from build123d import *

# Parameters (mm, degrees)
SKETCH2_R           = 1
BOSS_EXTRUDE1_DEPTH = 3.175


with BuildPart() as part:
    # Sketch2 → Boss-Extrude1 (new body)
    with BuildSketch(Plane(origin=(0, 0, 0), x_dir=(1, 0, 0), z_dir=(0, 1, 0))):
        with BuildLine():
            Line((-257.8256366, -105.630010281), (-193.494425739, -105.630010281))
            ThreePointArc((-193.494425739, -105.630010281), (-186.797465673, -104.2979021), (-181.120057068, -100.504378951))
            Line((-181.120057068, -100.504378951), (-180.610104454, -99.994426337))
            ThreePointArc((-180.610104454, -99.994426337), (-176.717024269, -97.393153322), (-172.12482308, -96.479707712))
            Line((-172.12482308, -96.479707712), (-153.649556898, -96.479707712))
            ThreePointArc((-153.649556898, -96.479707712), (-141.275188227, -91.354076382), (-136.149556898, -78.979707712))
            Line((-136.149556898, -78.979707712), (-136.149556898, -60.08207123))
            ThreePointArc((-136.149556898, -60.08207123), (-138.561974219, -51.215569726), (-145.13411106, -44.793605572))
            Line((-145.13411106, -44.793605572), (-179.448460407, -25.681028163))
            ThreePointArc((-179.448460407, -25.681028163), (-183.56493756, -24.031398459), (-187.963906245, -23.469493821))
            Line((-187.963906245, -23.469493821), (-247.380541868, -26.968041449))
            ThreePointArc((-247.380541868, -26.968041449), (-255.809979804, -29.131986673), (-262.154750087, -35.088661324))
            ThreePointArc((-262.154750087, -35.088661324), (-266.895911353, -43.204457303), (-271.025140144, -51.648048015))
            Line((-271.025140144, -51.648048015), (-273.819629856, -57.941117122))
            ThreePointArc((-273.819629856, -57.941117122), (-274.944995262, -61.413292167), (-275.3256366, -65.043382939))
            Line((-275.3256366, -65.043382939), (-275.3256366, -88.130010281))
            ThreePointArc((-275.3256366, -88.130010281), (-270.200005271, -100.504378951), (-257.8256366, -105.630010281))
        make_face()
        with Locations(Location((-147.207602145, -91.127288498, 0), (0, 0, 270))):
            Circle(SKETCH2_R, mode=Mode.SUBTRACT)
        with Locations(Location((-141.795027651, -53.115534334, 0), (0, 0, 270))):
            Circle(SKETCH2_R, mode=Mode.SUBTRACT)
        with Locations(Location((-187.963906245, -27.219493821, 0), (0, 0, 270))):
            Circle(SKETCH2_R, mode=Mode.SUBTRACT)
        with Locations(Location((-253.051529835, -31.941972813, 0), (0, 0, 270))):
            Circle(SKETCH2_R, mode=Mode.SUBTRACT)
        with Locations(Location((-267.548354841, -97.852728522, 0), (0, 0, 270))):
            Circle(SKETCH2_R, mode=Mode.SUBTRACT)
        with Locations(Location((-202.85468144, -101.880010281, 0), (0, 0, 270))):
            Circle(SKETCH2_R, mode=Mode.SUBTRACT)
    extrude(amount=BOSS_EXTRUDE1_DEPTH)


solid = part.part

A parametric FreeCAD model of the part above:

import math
import FreeCAD as App
import Part
import Sketcher
Q = App.Units.Quantity

doc = App.newDocument("Part")
body = doc.addObject("PartDesign::Body", "Body")

# Sketch on XZ plane
sketch1 = body.newObject("Sketcher::SketchObject", "Sketch")
sketch1.AttachmentSupport = (doc.getObject("XZ_Plane"), [""])
sketch1.MapMode = "FlatFace"
sketch1.addGeometry([
    Part.LineSegment(App.Vector(-257.825637, 105.63001, 0), App.Vector(-193.494426, 105.63001, 0)),  # 0
    Part.ArcOfCircle(Part.Circle(App.Vector(-193.494426, 88.13001, 0), App.Vector(0, 0, 1), 17.5), math.radians(45), math.radians(90)),  # 1
    Part.LineSegment(App.Vector(-181.120057, 100.504379, 0), App.Vector(-180.610104, 99.994426, 0)),  # 2
    Part.ArcOfCircle(Part.Circle(App.Vector(-172.124823, 108.479708, 0), App.Vector(0, 0, 1), 12), math.radians(-135), math.radians(-90)),  # 3
    Part.LineSegment(App.Vector(-172.124823, 96.479708, 0), App.Vector(-153.649557, 96.479708, 0)),  # 4
    Part.ArcOfCircle(Part.Circle(App.Vector(-153.649557, 78.979708, 0), App.Vector(0, 0, 1), 17.5), math.radians(0), math.radians(90)),  # 5
    Part.LineSegment(App.Vector(-136.149557, 78.979708, 0), App.Vector(-136.149557, 60.082071, 0)),  # 6
    Part.ArcOfCircle(Part.Circle(App.Vector(-153.649557, 60.082071, 0), App.Vector(0, 0, 1), 17.5), math.radians(-60.88285), math.radians(0)),  # 7
    Part.LineSegment(App.Vector(-145.134111, 44.793606, 0), App.Vector(-179.44846, 25.681028, 0)),  # 8
    Part.ArcOfCircle(Part.Circle(App.Vector(-187.963906, 40.969494, 0), App.Vector(0, 0, 1), 17.5), math.radians(-90), math.radians(-60.88285)),  # 9
    Part.LineSegment(App.Vector(-187.963906, 23.469494, 0), App.Vector(-247.380542, 26.968041, 0)),  # 10
    Part.ArcOfCircle(Part.Circle(App.Vector(-247.380542, 44.468041, 0), App.Vector(0, 0, 1), 17.5), math.radians(-147.59065), math.radians(-90)),  # 11
    Part.ArcOfCircle(Part.Circle(App.Vector(-154.715336, 103.296385, 0), App.Vector(0, 0, 1), 127.261625), math.radians(-156.055988), math.radians(-147.59065)),  # 12
    Part.LineSegment(App.Vector(-271.02514, 51.648048, 0), App.Vector(-273.81963, 57.941117, 0)),  # 13
    Part.ArcOfCircle(Part.Circle(App.Vector(-257.825637, 65.043383, 0), App.Vector(0, 0, 1), 17.5), math.radians(180), math.radians(203.944012)),  # 14
    Part.LineSegment(App.Vector(-275.325637, 65.043383, 0), App.Vector(-275.325637, 88.13001, 0)),  # 15
    Part.ArcOfCircle(Part.Circle(App.Vector(-257.825637, 88.13001, 0), App.Vector(0, 0, 1), 17.5), math.radians(90), math.radians(180)),  # 16
    Part.Circle(App.Vector(-267.548355, 97.852729, 0), App.Vector(0, 0, 1), 1),  # 17
    Part.Circle(App.Vector(-202.854681, 101.88001, 0), App.Vector(0, 0, 1), 1),  # 18
    Part.Circle(App.Vector(-147.207602, 91.127288, 0), App.Vector(0, 0, 1), 1),  # 19
    Part.Circle(App.Vector(-253.05153, 31.941973, 0), App.Vector(0, 0, 1), 1),  # 20
    Part.Circle(App.Vector(-141.795028, 53.115534, 0), App.Vector(0, 0, 1), 1),  # 21
    Part.Circle(App.Vector(-187.963906, 27.219494, 0), App.Vector(0, 0, 1), 1),  # 22
], False)
sketch1.addConstraint([
    Sketcher.Constraint("Tangent", 0, 2, 1, 2),
    Sketcher.Constraint("Tangent", 1, 1, 2, 1),
    Sketcher.Constraint("Tangent", 2, 2, 3, 1),
    Sketcher.Constraint("Tangent", 3, 2, 4, 1),
    Sketcher.Constraint("Tangent", 4, 2, 5, 2),
    Sketcher.Constraint("Tangent", 5, 1, 6, 1),
    Sketcher.Constraint("Tangent", 6, 2, 7, 2),
    Sketcher.Constraint("Tangent", 7, 1, 8, 1),
    Sketcher.Constraint("Tangent", 8, 2, 9, 2),
    Sketcher.Constraint("Coincident", 9, 1, 10, 1),
    Sketcher.Constraint("Coincident", 10, 2, 11, 2),
    Sketcher.Constraint("Tangent", 11, 1, 12, 2),
    Sketcher.Constraint("Tangent", 12, 1, 13, 1),
    Sketcher.Constraint("Tangent", 13, 2, 14, 2),
    Sketcher.Constraint("Tangent", 14, 1, 15, 1),
    Sketcher.Constraint("Tangent", 15, 2, 16, 2),
    Sketcher.Constraint("Tangent", 16, 1, 0, 1),
    Sketcher.Constraint("Horizontal", 0),
    Sketcher.Constraint("Horizontal", 4),
    Sketcher.Constraint("Vertical", 6),
    Sketcher.Constraint("Vertical", 15),
    Sketcher.Constraint("Equal", 1, 5),
    Sketcher.Constraint("Equal", 5, 7),
    Sketcher.Constraint("Equal", 7, 9),
    Sketcher.Constraint("Equal", 9, 11),
    Sketcher.Constraint("Equal", 11, 14),
    Sketcher.Constraint("Equal", 14, 16),
    Sketcher.Constraint("Equal", 17, 18),
    Sketcher.Constraint("Equal", 18, 19),
    Sketcher.Constraint("Equal", 19, 20),
    Sketcher.Constraint("Equal", 20, 21),
    Sketcher.Constraint("Equal", 21, 22),
    Sketcher.Constraint("Vertical", 9, 3, 22, 3),
    Sketcher.Constraint("Vertical", 22, 3, 9, 1),
    Sketcher.Constraint("Vertical", 11, 3, 10, 2),
    Sketcher.Constraint("Diameter", 17, Q("2 mm")),
    Sketcher.Constraint("Radius", 3, Q("12 mm")),
    Sketcher.Constraint("Radius", 1, Q("17.5 mm")),
    Sketcher.Constraint("Angle", 2, Q("-45 deg")),
    Sketcher.Constraint("DistanceY", 1, 3, 18, 3, Q("13.75 mm")),
    Sketcher.Constraint("DistanceY", 22, 3, 9, 3, Q("13.75 mm")),
    Sketcher.Constraint("Radius", 12, Q("127.261625 mm")),
    Sketcher.Constraint("DistanceX", 0, 1, 0, 2, Q("64.331211 mm")),
    Sketcher.Constraint("DistanceX", 12, 1, 11, 3, Q("23.644598 mm")),
    Sketcher.Constraint("DistanceX", 13, 2, 20, 3, Q("20.7681 mm")),
    Sketcher.Constraint("Distance", 2, Q("0.721182 mm")),
    Sketcher.Constraint("Distance", 8, Q("39.27805 mm")),
    Sketcher.Constraint("Distance", 13, Q("6.885629 mm")),
    Sketcher.Constraint("DistanceX", 4, 1, 4, 2, Q("18.475266 mm")),
    Sketcher.Constraint("DistanceY", 6, 2, 6, 1, Q("18.897636 mm")),
    Sketcher.Constraint("DistanceY", 15, 1, 15, 2, Q("23.086627 mm")),
    Sketcher.Constraint("DistanceY", -1, 1, 1, 3, Q("88.13001 mm")),
    Sketcher.Constraint("DistanceX", 11, 3, -1, 1, Q("247.380542 mm")),
    Sketcher.Constraint("DistanceY", -1, 1, 11, 3, Q("44.468041 mm")),
    Sketcher.Constraint("DistanceY", -1, 1, 17, 3, Q("97.852729 mm")),
    Sketcher.Constraint("DistanceX", 18, 3, -1, 1, Q("202.854681 mm")),
    Sketcher.Constraint("DistanceY", -1, 1, 19, 3, Q("91.127288 mm")),
    Sketcher.Constraint("DistanceX", 7, 1, -1, 1, Q("145.134111 mm")),
    Sketcher.Constraint("DistanceX", 17, 3, 16, 3, Q("9.722718 mm")),
    Sketcher.Constraint("DistanceX", 3, 3, 19, 3, Q("24.917221 mm")),
    Sketcher.Constraint("DistanceY", 20, 3, 11, 3, Q("12.526069 mm")),
    Sketcher.Constraint("DistanceX", 7, 3, 21, 3, Q("11.854529 mm")),
    Sketcher.Constraint("DistanceY", 9, 3, 21, 3, Q("12.146041 mm")),
])
pad1 = body.newObject("PartDesign::Pad", "Pad")
pad1.Profile = sketch1
pad1.Length = 3.175
pad1.Reversed = True

doc.recompute()
